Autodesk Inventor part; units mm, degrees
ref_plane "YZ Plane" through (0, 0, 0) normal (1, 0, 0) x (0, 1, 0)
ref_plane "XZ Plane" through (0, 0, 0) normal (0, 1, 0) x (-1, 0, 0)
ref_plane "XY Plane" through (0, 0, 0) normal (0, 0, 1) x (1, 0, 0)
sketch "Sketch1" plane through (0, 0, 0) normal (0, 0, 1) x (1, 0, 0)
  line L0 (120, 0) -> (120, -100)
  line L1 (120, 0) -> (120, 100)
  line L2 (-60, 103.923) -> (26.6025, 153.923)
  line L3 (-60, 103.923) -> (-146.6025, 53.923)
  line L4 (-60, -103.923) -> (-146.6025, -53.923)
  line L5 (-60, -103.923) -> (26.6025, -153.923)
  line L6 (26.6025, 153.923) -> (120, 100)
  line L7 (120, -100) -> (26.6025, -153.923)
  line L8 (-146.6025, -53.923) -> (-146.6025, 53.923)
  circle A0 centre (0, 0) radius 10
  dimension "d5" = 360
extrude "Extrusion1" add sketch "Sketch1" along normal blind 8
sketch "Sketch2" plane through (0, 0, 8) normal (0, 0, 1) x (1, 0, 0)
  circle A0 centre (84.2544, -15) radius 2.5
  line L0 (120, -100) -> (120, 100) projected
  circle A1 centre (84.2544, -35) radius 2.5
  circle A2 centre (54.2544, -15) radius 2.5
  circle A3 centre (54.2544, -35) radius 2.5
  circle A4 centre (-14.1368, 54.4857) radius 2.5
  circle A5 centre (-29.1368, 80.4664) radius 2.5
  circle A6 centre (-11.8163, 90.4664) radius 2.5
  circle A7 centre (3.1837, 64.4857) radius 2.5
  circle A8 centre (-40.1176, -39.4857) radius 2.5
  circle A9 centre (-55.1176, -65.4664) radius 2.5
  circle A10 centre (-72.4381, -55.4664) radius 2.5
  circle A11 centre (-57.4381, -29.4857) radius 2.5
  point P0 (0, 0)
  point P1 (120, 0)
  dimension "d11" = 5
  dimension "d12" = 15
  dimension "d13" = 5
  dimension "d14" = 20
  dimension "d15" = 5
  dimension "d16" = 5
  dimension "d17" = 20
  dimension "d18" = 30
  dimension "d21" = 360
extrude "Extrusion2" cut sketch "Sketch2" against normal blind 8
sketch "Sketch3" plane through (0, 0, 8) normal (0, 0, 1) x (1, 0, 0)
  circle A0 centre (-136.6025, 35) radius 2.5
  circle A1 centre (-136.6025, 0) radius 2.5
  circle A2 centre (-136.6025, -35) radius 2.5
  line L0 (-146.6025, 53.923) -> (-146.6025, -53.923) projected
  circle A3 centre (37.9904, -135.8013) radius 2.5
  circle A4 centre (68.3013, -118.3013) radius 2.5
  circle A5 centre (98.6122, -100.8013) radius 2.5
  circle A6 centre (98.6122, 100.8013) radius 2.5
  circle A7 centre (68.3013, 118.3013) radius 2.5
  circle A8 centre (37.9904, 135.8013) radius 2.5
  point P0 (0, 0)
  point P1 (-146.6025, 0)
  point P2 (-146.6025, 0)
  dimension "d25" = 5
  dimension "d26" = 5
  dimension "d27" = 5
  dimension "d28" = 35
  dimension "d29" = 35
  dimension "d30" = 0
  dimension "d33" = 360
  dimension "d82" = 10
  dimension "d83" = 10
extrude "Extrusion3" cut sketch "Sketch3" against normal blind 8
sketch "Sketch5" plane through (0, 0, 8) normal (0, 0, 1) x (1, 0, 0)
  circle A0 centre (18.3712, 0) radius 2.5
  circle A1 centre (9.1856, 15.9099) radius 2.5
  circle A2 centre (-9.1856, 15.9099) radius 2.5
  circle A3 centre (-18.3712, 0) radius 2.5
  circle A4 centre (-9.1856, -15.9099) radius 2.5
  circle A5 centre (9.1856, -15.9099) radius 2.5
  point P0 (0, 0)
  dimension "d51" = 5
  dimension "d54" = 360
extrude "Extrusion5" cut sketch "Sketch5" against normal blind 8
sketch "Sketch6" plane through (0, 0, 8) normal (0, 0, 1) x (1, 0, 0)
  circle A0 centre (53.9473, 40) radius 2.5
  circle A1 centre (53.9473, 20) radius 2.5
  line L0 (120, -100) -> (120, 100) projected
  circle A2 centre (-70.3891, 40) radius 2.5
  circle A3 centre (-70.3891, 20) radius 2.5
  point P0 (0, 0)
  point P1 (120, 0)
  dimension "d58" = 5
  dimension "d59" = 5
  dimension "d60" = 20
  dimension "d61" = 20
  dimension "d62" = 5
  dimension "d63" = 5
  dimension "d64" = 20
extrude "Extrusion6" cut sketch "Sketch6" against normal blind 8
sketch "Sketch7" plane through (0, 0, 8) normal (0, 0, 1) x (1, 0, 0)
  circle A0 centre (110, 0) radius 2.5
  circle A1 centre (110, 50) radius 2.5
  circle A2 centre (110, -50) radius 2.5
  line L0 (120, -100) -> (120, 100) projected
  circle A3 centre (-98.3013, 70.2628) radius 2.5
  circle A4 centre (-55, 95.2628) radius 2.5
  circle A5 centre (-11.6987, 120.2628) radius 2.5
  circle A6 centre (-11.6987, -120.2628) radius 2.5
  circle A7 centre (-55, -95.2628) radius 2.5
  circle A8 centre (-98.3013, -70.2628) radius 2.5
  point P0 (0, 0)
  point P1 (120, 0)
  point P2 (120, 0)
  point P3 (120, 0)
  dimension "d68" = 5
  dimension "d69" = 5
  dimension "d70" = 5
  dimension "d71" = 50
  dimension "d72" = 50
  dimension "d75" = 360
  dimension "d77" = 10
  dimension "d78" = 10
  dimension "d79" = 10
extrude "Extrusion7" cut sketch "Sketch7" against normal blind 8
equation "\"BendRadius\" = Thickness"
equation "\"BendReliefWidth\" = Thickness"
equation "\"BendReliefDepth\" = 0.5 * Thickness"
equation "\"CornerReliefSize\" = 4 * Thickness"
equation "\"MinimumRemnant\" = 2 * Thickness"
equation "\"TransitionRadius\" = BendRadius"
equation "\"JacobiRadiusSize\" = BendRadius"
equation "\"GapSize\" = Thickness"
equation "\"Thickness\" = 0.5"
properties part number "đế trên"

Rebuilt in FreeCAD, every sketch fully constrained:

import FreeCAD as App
import Part
import Sketcher
from FreeCAD import Vector
Q = App.Units.Quantity

doc = App.newDocument("Part")
body = doc.addObject("PartDesign::Body", "Body")

# Sketch on XY plane
sketch1 = body.newObject("Sketcher::SketchObject", "Sketch")
sketch1.AttachmentSupport = (doc.getObject("XY_Plane"), [""])
sketch1.MapMode = "FlatFace"
sketch1.addGeometry([
    Part.LineSegment(Vector(120, -100, 0), Vector(120, 100, 0)),  # 0
    Part.LineSegment(Vector(120, 100, 0), Vector(26.6025, 153.923, 0)),  # 1
    Part.LineSegment(Vector(26.6025, 153.923, 0), Vector(-146.6025, 53.923, 0)),  # 2
    Part.LineSegment(Vector(-146.6025, 53.923, 0), Vector(-146.6025, -53.923, 0)),  # 3
    Part.LineSegment(Vector(-146.6025, -53.923, 0), Vector(26.6025, -153.923, 0)),  # 4
    Part.LineSegment(Vector(26.6025, -153.923, 0), Vector(120, -100, 0)),  # 5
    Part.Circle(Vector(0, 0, 0), Vector(0, 0, 1), 10),  # 6
], False)
sketch1.addConstraint([
    Sketcher.Constraint("Coincident", 0, 2, 1, 1),
    Sketcher.Constraint("Coincident", 1, 2, 2, 1),
    Sketcher.Constraint("Coincident", 2, 2, 3, 1),
    Sketcher.Constraint("Coincident", 3, 2, 4, 1),
    Sketcher.Constraint("Coincident", 4, 2, 5, 1),
    Sketcher.Constraint("Coincident", 5, 2, 0, 1),
    Sketcher.Constraint("Vertical", 0),
    Sketcher.Constraint("Vertical", 3),
    Sketcher.Constraint("Coincident", 6, 3, -1, 1),
    Sketcher.Constraint("Symmetric", 1, 2, 4, 2, -1),
    Sketcher.Constraint("Parallel", 1, 4),
    Sketcher.Constraint("Parallel", 2, 5),
    Sketcher.Constraint("Equal", 2, 4),
    Sketcher.Constraint("Diameter", 6, Q("20 mm")),
    Sketcher.Constraint("DistanceY", 0, 1, 0, 2, Q("200 mm")),
    Sketcher.Constraint("Angle", 1, Q("150 deg")),
    Sketcher.Constraint("Distance", 2, Q("200 mm")),
    Sketcher.Constraint("DistanceX", -1, 1, 0, 2, Q("120 mm")),
    Sketcher.Constraint("DistanceY", 3, 2, 3, 1, Q("107.846 mm")),
])
pad1 = body.newObject("PartDesign::Pad", "Pad")
pad1.Profile = sketch1
pad1.Length = 8

# Sketch on XY plane
sketch2 = body.newObject("Sketcher::SketchObject", "Sketch001")
sketch2.AttachmentSupport = (doc.getObject("XY_Plane"), [""])
sketch2.MapMode = "FlatFace"
sketch2.AttachmentOffset = App.Placement(Vector(0, 0, 8), App.Rotation())
sketch2.addGeometry([
    Part.Circle(Vector(84.2544, -15, 0), Vector(0, 0, 1), 2.5),  # 0
    Part.Circle(Vector(84.2544, -35, 0), Vector(0, 0, 1), 2.5),  # 1
    Part.Circle(Vector(54.2544, -15, 0), Vector(0, 0, 1), 2.5),  # 2
    Part.Circle(Vector(54.2544, -35, 0), Vector(0, 0, 1), 2.5),  # 3
    Part.Circle(Vector(-14.1368, 54.4857, 0), Vector(0, 0, 1), 2.5),  # 4
    Part.Circle(Vector(-29.1368, 80.4664, 0), Vector(0, 0, 1), 2.5),  # 5
    Part.Circle(Vector(-11.8163, 90.4664, 0), Vector(0, 0, 1), 2.5),  # 6
    Part.Circle(Vector(3.1837, 64.4857, 0), Vector(0, 0, 1), 2.5),  # 7
    Part.Circle(Vector(-40.1176, -39.4857, 0), Vector(0, 0, 1), 2.5),  # 8
    Part.Circle(Vector(-55.1176, -65.4664, 0), Vector(0, 0, 1), 2.5),  # 9
    Part.Circle(Vector(-72.4381, -55.4664, 0), Vector(0, 0, 1), 2.5),  # 10
    Part.Circle(Vector(-57.4381, -29.4857, 0), Vector(0, 0, 1), 2.5),  # 11
], False)
sketch2.addConstraint([
    Sketcher.Constraint("Equal", 0, 1),
    Sketcher.Constraint("Equal", 1, 2),
    Sketcher.Constraint("Equal", 2, 3),
    Sketcher.Constraint("Equal", 3, 4),
    Sketcher.Constraint("Equal", 4, 5),
    Sketcher.Constraint("Equal", 5, 6),
    Sketcher.Constraint("Equal", 6, 7),
    Sketcher.Constraint("Equal", 7, 8),
    Sketcher.Constraint("Equal", 8, 9),
    Sketcher.Constraint("Equal", 9, 10),
    Sketcher.Constraint("Equal", 10, 11),
    Sketcher.Constraint("Horizontal", 0, 3, 2, 3),
    Sketcher.Constraint("Horizontal", 1, 3, 3, 3),
    Sketcher.Constraint("Vertical", 0, 3, 1, 3),
    Sketcher.Constraint("Vertical", 2, 3, 3, 3),
    Sketcher.Constraint("Diameter", 0, Q("5 mm")),
    Sketcher.Constraint("DistanceY", 0, 3, -1, 1, Q("15 mm")),
    Sketcher.Constraint("DistanceY", 1, 3, 0, 3, Q("20 mm")),
    Sketcher.Constraint("DistanceX", 2, 3, 0, 3, Q("30 mm")),
    Sketcher.Constraint("DistanceX", 5, 3, 4, 3, Q("15 mm")),
    Sketcher.Constraint("DistanceX", 6, 3, 7, 3, Q("15 mm")),
    Sketcher.Constraint("DistanceX", 9, 3, 8, 3, Q("15 mm")),
    Sketcher.Constraint("DistanceX", 10, 3, 11, 3, Q("15 mm")),
    Sketcher.Constraint("DistanceY", 5, 3, 6, 3, Q("10 mm")),
    Sketcher.Constraint("DistanceY", 4, 3, 7, 3, Q("10 mm")),
    Sketcher.Constraint("DistanceY", 9, 3, 10, 3, Q("10 mm")),
    Sketcher.Constraint("DistanceY", 8, 3, 11, 3, Q("10 mm")),
    Sketcher.Constraint("DistanceX", 10, 3, -1, 1, Q("72.438 mm")),
    Sketcher.Constraint("DistanceX", 8, 3, 3, 3, Q("94.372 mm")),
    Sketcher.Constraint("DistanceY", 8, 3, 5, 3, Q("119.952 mm")),
    Sketcher.Constraint("DistanceY", 9, 3, 4, 3, Q("119.952 mm")),
    Sketcher.Constraint("DistanceX", -1, 1, 0, 3, Q("84.2544 mm")),
    Sketcher.Constraint("DistanceX", 4, 3, -1, 1, Q("14.1368 mm")),
    Sketcher.Constraint("DistanceY", -1, 1, 4, 3, Q("54.4857 mm")),
    Sketcher.Constraint("DistanceY", -1, 1, 5, 3, Q("80.4664 mm")),
    Sketcher.Constraint("DistanceX", 6, 3, -1, 1, Q("11.8163 mm")),
])
pocket1 = body.newObject("PartDesign::Pocket", "Pocket")
pocket1.Profile = sketch2
pocket1.Length = 8

# Sketch on XY plane
sketch3 = body.newObject("Sketcher::SketchObject", "Sketch002")
sketch3.AttachmentSupport = (doc.getObject("XY_Plane"), [""])
sketch3.MapMode = "FlatFace"
sketch3.AttachmentOffset = App.Placement(Vector(0, 0, 8), App.Rotation())
sketch3.addGeometry([
    Part.Circle(Vector(-136.6025, 35, 0), Vector(0, 0, 1), 2.5),  # 0
    Part.Circle(Vector(-136.6025, 0, 0), Vector(0, 0, 1), 2.5),  # 1
    Part.Circle(Vector(-136.6025, -35, 0), Vector(0, 0, 1), 2.5),  # 2
    Part.Circle(Vector(37.9904, -135.8013, 0), Vector(0, 0, 1), 2.5),  # 3
    Part.Circle(Vector(68.3013, -118.3013, 0), Vector(0, 0, 1), 2.5),  # 4
    Part.Circle(Vector(98.6122, -100.8013, 0), Vector(0, 0, 1), 2.5),  # 5
    Part.Circle(Vector(98.6122, 100.8013, 0), Vector(0, 0, 1), 2.5),  # 6
    Part.Circle(Vector(68.3013, 118.3013, 0), Vector(0, 0, 1), 2.5),  # 7
    Part.Circle(Vector(37.9904, 135.8013, 0), Vector(0, 0, 1), 2.5),  # 8
], False)
sketch3.addConstraint([
    Sketcher.Constraint("Equal", 0, 1),
    Sketcher.Constraint("Equal", 1, 2),
    Sketcher.Constraint("Equal", 2, 3),
    Sketcher.Constraint("Equal", 3, 4),
    Sketcher.Constraint("Equal", 4, 5),
    Sketcher.Constraint("Equal", 5, 6),
    Sketcher.Constraint("Equal", 6, 7),
    Sketcher.Constraint("Equal", 7, 8),
    Sketcher.Constraint("Symmetric", 0, 3, 2, 3, -1),
    Sketcher.Constraint("Symmetric", 5, 3, 6, 3, -1),
    Sketcher.Constraint("Symmetric", 4, 3, 7, 3, -1),
    Sketcher.Constraint("Symmetric", 3, 3, 8, 3, -1),
    Sketcher.Constraint("PointOnObject", 1, 3, -1),
    Sketcher.Constraint("Vertical", 0, 3, 1, 3),
    Sketcher.Constraint("Diameter", 0, Q("5 mm")),
    Sketcher.Constraint("DistanceY", -1, 1, 0, 3, Q("35 mm")),
    Sketcher.Constraint("DistanceY", 3, 3, 5, 3, Q("35 mm")),
    Sketcher.Constraint("DistanceY", 3, 3, 4, 3, Q("17.5 mm")),
    Sketcher.Constraint("DistanceX", 2, 3, 3, 3, Q("174.593 mm")),
    Sketcher.Constraint("DistanceX", 3, 3, 4, 3, Q("30.311 mm")),
    Sketcher.Constraint("DistanceX", 4, 3, 5, 3, Q("30.311 mm")),
    Sketcher.Constraint("DistanceX", 0, 3, -1, 1, Q("136.6025 mm")),
    Sketcher.Constraint("DistanceY", 3, 3, -1, 1, Q("135.8013 mm")),
])
pocket2 = body.newObject("PartDesign::Pocket", "Pocket001")
pocket2.Profile = sketch3
pocket2.Length = 8

# Sketch on XY plane
sketch4 = body.newObject("Sketcher::SketchObject", "Sketch003")
sketch4.AttachmentSupport = (doc.getObject("XY_Plane"), [""])
sketch4.MapMode = "FlatFace"
sketch4.AttachmentOffset = App.Placement(Vector(0, 0, 8), App.Rotation())
sketch4.addGeometry([
    Part.Circle(Vector(18.3712, 0, 0), Vector(0, 0, 1), 2.5),  # 0
    Part.Circle(Vector(9.1856, 15.9099, 0), Vector(0, 0, 1), 2.5),  # 1
    Part.Circle(Vector(-9.1856, 15.9099, 0), Vector(0, 0, 1), 2.5),  # 2
    Part.Circle(Vector(-18.3712, 0, 0), Vector(0, 0, 1), 2.5),  # 3
    Part.Circle(Vector(-9.1856, -15.9099, 0), Vector(0, 0, 1), 2.5),  # 4
    Part.Circle(Vector(9.1856, -15.9099, 0), Vector(0, 0, 1), 2.5),  # 5
], False)
sketch4.addConstraint([
    Sketcher.Constraint("Equal", 0, 1),
    Sketcher.Constraint("Equal", 1, 2),
    Sketcher.Constraint("Equal", 2, 3),
    Sketcher.Constraint("Equal", 3, 4),
    Sketcher.Constraint("Equal", 4, 5),
    Sketcher.Constraint("Symmetric", 0, 3, 3, 3, -1, 1),
    Sketcher.Constraint("Symmetric", 1, 3, 4, 3, -1, 1),
    Sketcher.Constraint("Symmetric", 2, 3, 5, 3, -1, 1),
    Sketcher.Constraint("Symmetric", 1, 3, 2, 3, -2),
    Sketcher.Constraint("PointOnObject", 0, 3, -1),
    Sketcher.Constraint("Diameter", 0, Q("5 mm")),
    Sketcher.Constraint("DistanceY", -1, 1, 1, 3, Q("15.91 mm")),
    Sketcher.Constraint("DistanceX", -1, 1, 0, 3, Q("18.3712 mm")),
    Sketcher.Constraint("DistanceX", -1, 1, 1, 3, Q("9.1856 mm")),
])
pocket3 = body.newObject("PartDesign::Pocket", "Pocket002")
pocket3.Profile = sketch4
pocket3.Length = 8

# Sketch on XY plane
sketch5 = body.newObject("Sketcher::SketchObject", "Sketch004")
sketch5.AttachmentSupport = (doc.getObject("XY_Plane"), [""])
sketch5.MapMode = "FlatFace"
sketch5.AttachmentOffset = App.Placement(Vector(0, 0, 8), App.Rotation())
sketch5.addGeometry([
    Part.Circle(Vector(53.9473, 40, 0), Vector(0, 0, 1), 2.5),
    Part.Circle(Vector(53.9473, 20, 0), Vector(0, 0, 1), 2.5),
    Part.Circle(Vector(-70.3891, 40, 0), Vector(0, 0, 1), 2.5),
    Part.Circle(Vector(-70.3891, 20, 0), Vector(0, 0, 1), 2.5),
], False)
sketch5.addConstraint([
    Sketcher.Constraint("Equal", 0, 1),
    Sketcher.Constraint("Equal", 1, 2),
    Sketcher.Constraint("Equal", 2, 3),
    Sketcher.Constraint("Horizontal", 0, 3, 2, 3),
    Sketcher.Constraint("Horizontal", 1, 3, 3, 3),
    Sketcher.Constraint("Vertical", 0, 3, 1, 3),
    Sketcher.Constraint("Vertical", 2, 3, 3, 3),
    Sketcher.Constraint("Diameter", 0, Q("5 mm")),
    Sketcher.Constraint("DistanceY", -1, 1, 1, 3, Q("20 mm")),
    Sketcher.Constraint("DistanceY", 1, 3, 0, 3, Q("20 mm")),
    Sketcher.Constraint("DistanceX", 2, 3, -1, 1, Q("70.389 mm")),
    Sketcher.Constraint("DistanceX", -1, 1, 0, 3, Q("53.9473 mm")),
])
pocket4 = body.newObject("PartDesign::Pocket", "Pocket003")
pocket4.Profile = sketch5
pocket4.Length = 8

# Sketch on XY plane
sketch6 = body.newObject("Sketcher::SketchObject", "Sketch005")
sketch6.AttachmentSupport = (doc.getObject("XY_Plane"), [""])
sketch6.MapMode = "FlatFace"
sketch6.AttachmentOffset = App.Placement(Vector(0, 0, 8), App.Rotation())
sketch6.addGeometry([
    Part.Circle(Vector(110, 0, 0), Vector(0, 0, 1), 2.5),  # 0
    Part.Circle(Vector(110, 50, 0), Vector(0, 0, 1), 2.5),  # 1
    Part.Circle(Vector(110, -50, 0), Vector(0, 0, 1), 2.5),  # 2
    Part.Circle(Vector(-98.3013, 70.2628, 0), Vector(0, 0, 1), 2.5),  # 3
    Part.Circle(Vector(-55, 95.2628, 0), Vector(0, 0, 1), 2.5),  # 4
    Part.Circle(Vector(-11.6987, 120.2628, 0), Vector(0, 0, 1), 2.5),  # 5
    Part.Circle(Vector(-11.6987, -120.2628, 0), Vector(0, 0, 1), 2.5),  # 6
    Part.Circle(Vector(-55, -95.2628, 0), Vector(0, 0, 1), 2.5),  # 7
    Part.Circle(Vector(-98.3013, -70.2628, 0), Vector(0, 0, 1), 2.5),  # 8
], False)
sketch6.addConstraint([
    Sketcher.Constraint("Equal", 0, 1),
    Sketcher.Constraint("Equal", 1, 2),
    Sketcher.Constraint("Equal", 2, 3),
    Sketcher.Constraint("Equal", 3, 4),
    Sketcher.Constraint("Equal", 4, 5),
    Sketcher.Constraint("Equal", 5, 6),
    Sketcher.Constraint("Equal", 6, 7),
    Sketcher.Constraint("Equal", 7, 8),
    Sketcher.Constraint("Symmetric", 1, 3, 2, 3, -1),
    Sketcher.Constraint("Symmetric", 5, 3, 6, 3, -1),
    Sketcher.Constraint("Symmetric", 4, 3, 7, 3, -1),
    Sketcher.Constraint("Symmetric", 3, 3, 8, 3, -1),
    Sketcher.Constraint("PointOnObject", 0, 3, -1),
    Sketcher.Constraint("Vertical", 0, 3, 1, 3),
    Sketcher.Constraint("Diameter", 0, Q("5 mm")),
    Sketcher.Constraint("DistanceY", -1, 1, 1, 3, Q("50 mm")),
    Sketcher.Constraint("DistanceY", 3, 3, 5, 3, Q("50 mm")),
    Sketcher.Constraint("DistanceX", -1, 1, 0, 3, Q("110 mm")),
    Sketcher.Constraint("DistanceX", 4, 3, -1, 1, Q("55 mm")),
    Sketcher.Constraint("DistanceY", 3, 3, 4, 3, Q("25 mm")),
    Sketcher.Constraint("DistanceX", 3, 3, -1, 1, Q("98.3013 mm")),
    Sketcher.Constraint("DistanceY", -1, 1, 3, 3, Q("70.2628 mm")),
    Sketcher.Constraint("DistanceX", 5, 3, -1, 1, Q("11.6987 mm")),
])
pocket5 = body.newObject("PartDesign::Pocket", "Pocket004")
pocket5.Profile = sketch6
pocket5.Length = 8

doc.recompute()
